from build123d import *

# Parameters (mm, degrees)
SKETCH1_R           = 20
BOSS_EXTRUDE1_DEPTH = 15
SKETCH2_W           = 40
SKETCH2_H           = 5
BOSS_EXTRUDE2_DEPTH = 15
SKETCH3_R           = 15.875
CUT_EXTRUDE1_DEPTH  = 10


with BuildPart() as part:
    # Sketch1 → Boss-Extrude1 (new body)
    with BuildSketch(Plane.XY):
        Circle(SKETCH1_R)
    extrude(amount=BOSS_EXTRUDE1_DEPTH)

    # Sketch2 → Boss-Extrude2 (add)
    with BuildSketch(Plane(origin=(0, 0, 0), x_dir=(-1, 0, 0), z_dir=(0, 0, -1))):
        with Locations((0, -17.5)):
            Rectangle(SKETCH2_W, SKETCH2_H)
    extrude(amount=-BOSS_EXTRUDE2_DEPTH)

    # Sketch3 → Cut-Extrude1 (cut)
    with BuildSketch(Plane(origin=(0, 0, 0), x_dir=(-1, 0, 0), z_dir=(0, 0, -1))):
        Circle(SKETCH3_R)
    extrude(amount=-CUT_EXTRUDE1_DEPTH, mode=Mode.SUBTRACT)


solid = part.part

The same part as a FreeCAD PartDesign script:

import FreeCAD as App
import Part
import Sketcher
from FreeCAD import Vector


def add_polygon(sketch, points):
    """Adds a closed chain of lines whose ends are joined by coincident constraints."""
    first, n = sketch.GeometryCount, len(points)
    for a, b in zip(points, points[1:] + points[:1]):
        sketch.addGeometry(Part.LineSegment(App.Vector(*a, 0), App.Vector(*b, 0)), False)
    for i in range(n):
        sketch.addConstraint(Sketcher.Constraint("Coincident", first + i, 2, first + (i + 1) % n, 1))

doc = App.newDocument("Part")
params = doc.addObject("Spreadsheet::Sheet", "Params")
for row, (alias, value) in enumerate([
    ("sketch1_diameter", "40 mm"),
    ("pad1_length", "15 mm"),
    ("sketch2_width", "40 mm"),
    ("sketch2_height", "5 mm"),
    ("pad2_length", "15 mm"),
    ("sketch3_diameter", "31.75 mm"),
    ("pocket1_length", "10 mm"),
], start=1):
    params.set(f"A{row}", alias)
    params.set(f"B{row}", "=" + value)
    params.setAlias(f"B{row}", alias)

body = doc.addObject("PartDesign::Body", "Body")

sketch1 = body.newObject("Sketcher::SketchObject", "Sketch")
sketch1.AttachmentSupport = (doc.getObject("XY_Plane"), [""])
sketch1.MapMode = "FlatFace"
sketch1.addGeometry(Part.Circle(Vector(0, 0, 0), Vector(0, 0, 1), 20), False)
sketch1.addConstraint(Sketcher.Constraint("Coincident", 0, 3, -1, 1))
sketch1.addConstraint(Sketcher.Constraint("Diameter", 0, 40.0))
sketch1.setExpression("Constraints[1]", "Params.sketch1_diameter")
pad1 = body.newObject("PartDesign::Pad", "Pad")
pad1.Profile = sketch1
pad1.setExpression("Length", "Params.pad1_length")

sketch2 = body.newObject("Sketcher::SketchObject", "Sketch001")
sketch2.AttachmentSupport = (doc.getObject("XY_Plane"), [""])
sketch2.MapMode = "FlatFace"
add_polygon(sketch2, [(20, -15), (20, -20), (-20, -20), (-20, -15)])
sketch2.addConstraint(Sketcher.Constraint("Vertical", 0))
sketch2.addConstraint(Sketcher.Constraint("Horizontal", 1))
sketch2.addConstraint(Sketcher.Constraint("Vertical", 2))
sketch2.addConstraint(Sketcher.Constraint("Horizontal", 3))
sketch2.addConstraint(Sketcher.Constraint("DistanceX", 1, 2, 1, 1, 40.0))
sketch2.addConstraint(Sketcher.Constraint("DistanceY", 0, 2, 0, 1, 5.0))
sketch2.addConstraint(Sketcher.Constraint("DistanceX", -1, 1, 0, 2, 20.0))
sketch2.addConstraint(Sketcher.Constraint("DistanceY", 0, 2, -1, 1, 20.0))
sketch2.setExpression("Constraints[8]", "Params.sketch2_width")
sketch2.setExpression("Constraints[9]", "Params.sketch2_height")
pad2 = body.newObject("PartDesign::Pad", "Pad001")
pad2.Profile = sketch2
pad2.setExpression("Length", "Params.pad2_length")

sketch3 = body.newObject("Sketcher::SketchObject", "Sketch002")
sketch3.AttachmentSupport = (doc.getObject("XY_Plane"), [""])
sketch3.MapMode = "FlatFace"
sketch3.addGeometry(Part.Circle(Vector(0, 0, 0), Vector(0, 0, 1), 16), False)
sketch3.addConstraint(Sketcher.Constraint("Coincident", 0, 3, -1, 1))
sketch3.addConstraint(Sketcher.Constraint("Diameter", 0, 31.75))
sketch3.setExpression("Constraints[1]", "Params.sketch3_diameter")
pocket1 = body.newObject("PartDesign::Pocket", "Pocket")
pocket1.Profile = sketch3
pocket1.setExpression("Length", "Params.pocket1_length")
pocket1.Reversed = True

doc.recompute()
